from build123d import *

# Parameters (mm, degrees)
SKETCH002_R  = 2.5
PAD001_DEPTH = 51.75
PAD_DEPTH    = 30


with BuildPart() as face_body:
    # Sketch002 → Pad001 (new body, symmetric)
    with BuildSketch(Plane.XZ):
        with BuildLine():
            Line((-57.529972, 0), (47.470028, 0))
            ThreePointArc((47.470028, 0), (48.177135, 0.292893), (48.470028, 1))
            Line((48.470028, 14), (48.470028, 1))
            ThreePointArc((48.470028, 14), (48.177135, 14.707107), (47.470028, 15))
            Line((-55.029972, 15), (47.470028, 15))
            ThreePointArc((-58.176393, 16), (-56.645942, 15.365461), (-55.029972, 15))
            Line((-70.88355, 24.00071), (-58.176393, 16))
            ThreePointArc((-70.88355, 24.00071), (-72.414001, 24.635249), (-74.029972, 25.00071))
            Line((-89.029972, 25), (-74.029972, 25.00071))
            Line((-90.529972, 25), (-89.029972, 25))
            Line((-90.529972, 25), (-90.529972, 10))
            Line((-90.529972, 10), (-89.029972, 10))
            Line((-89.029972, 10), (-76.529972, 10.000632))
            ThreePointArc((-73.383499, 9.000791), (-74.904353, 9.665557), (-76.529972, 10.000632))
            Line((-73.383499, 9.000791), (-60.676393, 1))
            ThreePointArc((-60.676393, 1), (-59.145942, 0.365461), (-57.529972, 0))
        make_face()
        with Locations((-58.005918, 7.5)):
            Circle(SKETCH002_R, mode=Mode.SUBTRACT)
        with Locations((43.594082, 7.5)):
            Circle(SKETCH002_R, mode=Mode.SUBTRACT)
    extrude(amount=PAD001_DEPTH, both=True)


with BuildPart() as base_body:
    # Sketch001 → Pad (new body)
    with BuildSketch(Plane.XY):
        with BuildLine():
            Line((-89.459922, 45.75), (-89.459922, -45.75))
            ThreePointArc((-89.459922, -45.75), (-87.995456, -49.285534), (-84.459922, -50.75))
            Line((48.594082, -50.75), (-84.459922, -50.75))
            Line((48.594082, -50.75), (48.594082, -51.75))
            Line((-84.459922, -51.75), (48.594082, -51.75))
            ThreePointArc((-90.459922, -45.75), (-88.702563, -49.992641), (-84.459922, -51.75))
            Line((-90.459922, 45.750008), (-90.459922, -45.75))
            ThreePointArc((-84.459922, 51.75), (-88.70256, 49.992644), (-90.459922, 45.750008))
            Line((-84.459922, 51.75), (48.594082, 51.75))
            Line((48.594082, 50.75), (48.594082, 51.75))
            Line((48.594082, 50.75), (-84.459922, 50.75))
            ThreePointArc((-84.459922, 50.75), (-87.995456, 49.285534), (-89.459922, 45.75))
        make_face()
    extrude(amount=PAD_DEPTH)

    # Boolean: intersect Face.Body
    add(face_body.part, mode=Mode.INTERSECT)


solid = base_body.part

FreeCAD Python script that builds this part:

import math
import FreeCAD as App
import Part
import Sketcher
from FreeCAD import Vector

doc = App.newDocument("Part")
body = doc.addObject("PartDesign::Body", "Body")

# Sketch on XZ plane
sketch1 = body.newObject("Sketcher::SketchObject", "Sketch")
sketch1.AttachmentSupport = (doc.getObject("XZ_Plane"), [""])
sketch1.MapMode = "FlatFace"
sketch1.addGeometry([
    Part.LineSegment(Vector(-57.529972, 0, 0), Vector(47.470028, 0, 0)),  # 0
    Part.ArcOfCircle(Part.Circle(Vector(47.470029, 0.999999, 0), Vector(0, 0, 1), 0.999999), math.radians(-90.000043), math.radians(0.000043)),  # 1
    Part.LineSegment(Vector(48.470028, 1, 0), Vector(48.470028, 14, 0)),  # 2
    Part.ArcOfCircle(Part.Circle(Vector(47.470029, 14.000001, 0), Vector(0, 0, 1), 0.999999), math.radians(-0.000043), math.radians(90.000043)),  # 3
    Part.LineSegment(Vector(47.470028, 15, 0), Vector(-55.029972, 15, 0)),  # 4
    Part.ArcOfCircle(Part.Circle(Vector(-53.701228, 24.630772, 0), Vector(0, 0, 1), 9.722002), math.radians(-117.407316), math.radians(-97.855427)),  # 5
    Part.LineSegment(Vector(-58.176393, 16, 0), Vector(-70.88355, 24.00071, 0)),  # 6
    Part.ArcOfCircle(Part.Circle(Vector(-75.358714, 15.369942, 0), Vector(0, 0, 1), 9.721998), math.radians(62.592682), math.radians(82.144586)),  # 7
    Part.LineSegment(Vector(-74.029972, 25.00071, 0), Vector(-89.029972, 25, 0)),  # 8
    Part.LineSegment(Vector(-89.029972, 25, 0), Vector(-90.529972, 25, 0)),  # 9
    Part.LineSegment(Vector(-90.529972, 25, 0), Vector(-90.529972, 10, 0)),  # 10
    Part.LineSegment(Vector(-90.529972, 10, 0), Vector(-89.029972, 10, 0)),  # 11
    Part.LineSegment(Vector(-89.029972, 10, 0), Vector(-76.529972, 10.000632, 0)),  # 12
    Part.ArcOfCircle(Part.Circle(Vector(-77.31609, 2.075887, 0), Vector(0, 0, 1), 7.96364), math.radians(60.408148), math.radians(84.334915)),  # 13
    Part.LineSegment(Vector(-73.383499, 9.000791, 0), Vector(-60.676393, 1, 0)),  # 14
    Part.ArcOfCircle(Part.Circle(Vector(-56.201228, 9.630772, 0), Vector(0, 0, 1), 9.722002), math.radians(-117.407316), math.radians(-97.855427)),  # 15
    Part.Circle(Vector(-58.005918, 7.5, 0), Vector(0, 0, 1), 2.5),  # 16
    Part.Circle(Vector(43.594082, 7.5, 0), Vector(0, 0, 1), 2.5),  # 17
], False)
sketch1.addConstraint([
    Sketcher.Constraint("Coincident", 0, 2, 1, 1),
    Sketcher.Constraint("Coincident", 1, 2, 2, 1),
    Sketcher.Constraint("Coincident", 2, 2, 3, 1),
    Sketcher.Constraint("Coincident", 3, 2, 4, 1),
    Sketcher.Constraint("Coincident", 4, 2, 5, 2),
    Sketcher.Constraint("Coincident", 5, 1, 6, 1),
    Sketcher.Constraint("Coincident", 6, 2, 7, 1),
    Sketcher.Constraint("Coincident", 7, 2, 8, 1),
    Sketcher.Constraint("Coincident", 8, 2, 9, 1),
    Sketcher.Constraint("Coincident", 9, 2, 10, 1),
    Sketcher.Constraint("Coincident", 10, 2, 11, 1),
    Sketcher.Constraint("Coincident", 11, 2, 12, 1),
    Sketcher.Constraint("Coincident", 12, 2, 13, 2),
    Sketcher.Constraint("Coincident", 13, 1, 14, 1),
    Sketcher.Constraint("Coincident", 14, 2, 15, 1),
    Sketcher.Constraint("Coincident", 15, 2, 0, 1),
    Sketcher.Constraint("Horizontal", 0),
    Sketcher.Constraint("Vertical", 2),
    Sketcher.Constraint("Horizontal", 4),
    Sketcher.Constraint("Horizontal", 9),
    Sketcher.Constraint("Vertical", 10),
    Sketcher.Constraint("Horizontal", 11),
    Sketcher.Constraint("PointOnObject", 0, 2, -1),
    Sketcher.Constraint("Diameter", 16, 5.0),
    Sketcher.Constraint("Diameter", 17, 5.0),
    Sketcher.Constraint("Radius", 1, 0.999999),
    Sketcher.Constraint("Radius", 3, 0.999999),
    Sketcher.Constraint("DistanceX", 0, 1, 0, 2, 105.0),
    Sketcher.Constraint("DistanceY", 2, 1, 2, 2, 13.0),
    Sketcher.Constraint("DistanceY", 10, 2, 10, 1, 15.0),
    Sketcher.Constraint("Distance", 8, 15.0),
    Sketcher.Constraint("DistanceX", 4, 2, 4, 1, 102.5),
    Sketcher.Constraint("DistanceX", 9, 2, 9, 1, 1.5),
    Sketcher.Constraint("DistanceX", 11, 1, 11, 2, 1.5),
    Sketcher.Constraint("DistanceY", -1, 1, 3, 3, 14.000001),
    Sketcher.Constraint("DistanceY", -1, 1, 1, 2, 1.0),
    Sketcher.Constraint("DistanceY", -1, 1, 5, 1, 16.0),
    Sketcher.Constraint("DistanceY", -1, 1, 8, 2, 25.0),
    Sketcher.Constraint("DistanceY", -1, 1, 14, 2, 1.0),
    Sketcher.Constraint("DistanceY", 15, 3, 5, 3, 15.0),
    Sketcher.Constraint("DistanceX", 0, 2, 1, 2, 1.0),
    Sketcher.Constraint("DistanceX", 3, 2, 2, 2, 1.0),
    Sketcher.Constraint("DistanceY", 6, 2, 7, 2, 1.0),
    Sketcher.Constraint("DistanceX", 7, 2, 4, 2, 19.0),
    Sketcher.Constraint("DistanceX", 10, 2, 12, 2, 14.0),
    Sketcher.Constraint("DistanceY", -1, 1, 16, 3, 7.5),
    Sketcher.Constraint("DistanceY", -1, 1, 17, 3, 7.5),
    Sketcher.Constraint("DistanceX", 15, 3, 5, 3, 2.5),
    Sketcher.Constraint("DistanceX", 16, 3, 17, 3, 101.6),
    Sketcher.Constraint("Radius", 13, 7.96364),
    Sketcher.Constraint("Radius", 5, 9.722002),
    Sketcher.Constraint("Radius", 7, 9.721998),
    Sketcher.Constraint("Distance", 6, 15.016098),
    Sketcher.Constraint("Distance", 14, 15.016098),
    Sketcher.Constraint("DistanceX", 13, 1, -1, 1, 73.383499),
    Sketcher.Constraint("DistanceX", -1, 1, 1, 3, 47.470029),
    Sketcher.Constraint("DistanceX", 13, 3, -1, 1, 77.31609),
    Sketcher.Constraint("DistanceX", 6, 2, -1, 1, 70.88355),
    Sketcher.Constraint("DistanceY", -1, 1, 6, 2, 24.00071),
    Sketcher.Constraint("DistanceX", 16, 3, 15, 3, 1.80469),
])
pad1 = body.newObject("PartDesign::Pad", "Pad")
pad1.Profile = sketch1
pad1.Length = 103.5
pad1.Midplane = True
body2 = doc.addObject("PartDesign::Body", "Body001")

# Sketch on XY plane
sketch2 = body2.newObject("Sketcher::SketchObject", "Sketch001")
sketch2.AttachmentSupport = (doc.getObject("XY_Plane001"), [""])
sketch2.MapMode = "FlatFace"
sketch2.addGeometry([
    Part.LineSegment(Vector(-89.459922, -45.75, 0), Vector(-89.459922, 45.75, 0)),  # 0
    Part.ArcOfCircle(Part.Circle(Vector(-84.459922, 45.75, 0), Vector(0, 0, 1), 5), math.radians(89.999996), math.radians(180.000004)),  # 1
    Part.LineSegment(Vector(-84.459922, 50.75, 0), Vector(48.594082, 50.75, 0)),  # 2
    Part.LineSegment(Vector(48.594082, 50.75, 0), Vector(48.594082, 51.75, 0)),  # 3
    Part.LineSegment(Vector(48.594082, 51.75, 0), Vector(-84.459922, 51.75, 0)),  # 4
    Part.ArcOfCircle(Part.Circle(Vector(-84.459923, 45.750001, 0), Vector(0, 0, 1), 5.999999), math.radians(89.99999), math.radians(179.999934)),  # 5
    Part.LineSegment(Vector(-90.459922, 45.750008, 0), Vector(-90.459922, -45.75, 0)),  # 6
    Part.ArcOfCircle(Part.Circle(Vector(-84.459923, -45.750001, 0), Vector(0, 0, 1), 5.999999), math.radians(179.99999), math.radians(270.00001)),  # 7
    Part.LineSegment(Vector(-84.459922, -51.75, 0), Vector(48.594082, -51.75, 0)),  # 8
    Part.LineSegment(Vector(48.594082, -51.75, 0), Vector(48.594082, -50.75, 0)),  # 9
    Part.LineSegment(Vector(48.594082, -50.75, 0), Vector(-84.459922, -50.75, 0)),  # 10
    Part.ArcOfCircle(Part.Circle(Vector(-84.459922, -45.75, 0), Vector(0, 0, 1), 5), math.radians(179.999996), math.radians(270.000004)),  # 11
], False)
sketch2.addConstraint([
    Sketcher.Constraint("Tangent", 0, 2, 1, 2),
    Sketcher.Constraint("Tangent", 1, 1, 2, 1),
    Sketcher.Constraint("Coincident", 2, 2, 3, 1),
    Sketcher.Constraint("Coincident", 3, 2, 4, 1),
    Sketcher.Constraint("Tangent", 4, 2, 5, 1),
    Sketcher.Constraint("Tangent", 5, 2, 6, 1),
    Sketcher.Constraint("Tangent", 6, 2, 7, 1),
    Sketcher.Constraint("Tangent", 7, 2, 8, 1),
    Sketcher.Constraint("Coincident", 8, 2, 9, 1),
    Sketcher.Constraint("Coincident", 9, 2, 10, 1),
    Sketcher.Constraint("Tangent", 10, 2, 11, 2),
    Sketcher.Constraint("Tangent", 11, 1, 0, 1),
    Sketcher.Constraint("Vertical", 0),
    Sketcher.Constraint("Horizontal", 2),
    Sketcher.Constraint("Vertical", 3),
    Sketcher.Constraint("Horizontal", 4),
    Sketcher.Constraint("Vertical", 6),
    Sketcher.Constraint("Horizontal", 8),
    Sketcher.Constraint("Vertical", 9),
    Sketcher.Constraint("Horizontal", 10),
    Sketcher.Constraint("Coincident", 5, 3, 1, 3),
    Sketcher.Constraint("Coincident", 11, 3, 7, 3),
    Sketcher.Constraint("Equal", 5, 7),
    Sketcher.Constraint("Symmetric", 3, 2, 8, 2, -1),
    Sketcher.Constraint("Radius", 1, 5.0),
    Sketcher.Constraint("Radius", 5, 5.999999),
    Sketcher.Constraint("DistanceY", 0, 1, 0, 2, 91.5),
    Sketcher.Constraint("DistanceX", 2, 1, 2, 2, 133.054004),
    Sketcher.Constraint("DistanceX", 5, 2, -1, 1, 90.459922),
])
pad2 = body2.newObject("PartDesign::Pad", "Pad001")
pad2.Profile = sketch2
pad2.Length = 30
doc.recompute()

boolean = body2.newObject("PartDesign::Boolean", "Boolean")
boolean.Type = "Common"
boolean.addObjects([body])

doc.recompute()
